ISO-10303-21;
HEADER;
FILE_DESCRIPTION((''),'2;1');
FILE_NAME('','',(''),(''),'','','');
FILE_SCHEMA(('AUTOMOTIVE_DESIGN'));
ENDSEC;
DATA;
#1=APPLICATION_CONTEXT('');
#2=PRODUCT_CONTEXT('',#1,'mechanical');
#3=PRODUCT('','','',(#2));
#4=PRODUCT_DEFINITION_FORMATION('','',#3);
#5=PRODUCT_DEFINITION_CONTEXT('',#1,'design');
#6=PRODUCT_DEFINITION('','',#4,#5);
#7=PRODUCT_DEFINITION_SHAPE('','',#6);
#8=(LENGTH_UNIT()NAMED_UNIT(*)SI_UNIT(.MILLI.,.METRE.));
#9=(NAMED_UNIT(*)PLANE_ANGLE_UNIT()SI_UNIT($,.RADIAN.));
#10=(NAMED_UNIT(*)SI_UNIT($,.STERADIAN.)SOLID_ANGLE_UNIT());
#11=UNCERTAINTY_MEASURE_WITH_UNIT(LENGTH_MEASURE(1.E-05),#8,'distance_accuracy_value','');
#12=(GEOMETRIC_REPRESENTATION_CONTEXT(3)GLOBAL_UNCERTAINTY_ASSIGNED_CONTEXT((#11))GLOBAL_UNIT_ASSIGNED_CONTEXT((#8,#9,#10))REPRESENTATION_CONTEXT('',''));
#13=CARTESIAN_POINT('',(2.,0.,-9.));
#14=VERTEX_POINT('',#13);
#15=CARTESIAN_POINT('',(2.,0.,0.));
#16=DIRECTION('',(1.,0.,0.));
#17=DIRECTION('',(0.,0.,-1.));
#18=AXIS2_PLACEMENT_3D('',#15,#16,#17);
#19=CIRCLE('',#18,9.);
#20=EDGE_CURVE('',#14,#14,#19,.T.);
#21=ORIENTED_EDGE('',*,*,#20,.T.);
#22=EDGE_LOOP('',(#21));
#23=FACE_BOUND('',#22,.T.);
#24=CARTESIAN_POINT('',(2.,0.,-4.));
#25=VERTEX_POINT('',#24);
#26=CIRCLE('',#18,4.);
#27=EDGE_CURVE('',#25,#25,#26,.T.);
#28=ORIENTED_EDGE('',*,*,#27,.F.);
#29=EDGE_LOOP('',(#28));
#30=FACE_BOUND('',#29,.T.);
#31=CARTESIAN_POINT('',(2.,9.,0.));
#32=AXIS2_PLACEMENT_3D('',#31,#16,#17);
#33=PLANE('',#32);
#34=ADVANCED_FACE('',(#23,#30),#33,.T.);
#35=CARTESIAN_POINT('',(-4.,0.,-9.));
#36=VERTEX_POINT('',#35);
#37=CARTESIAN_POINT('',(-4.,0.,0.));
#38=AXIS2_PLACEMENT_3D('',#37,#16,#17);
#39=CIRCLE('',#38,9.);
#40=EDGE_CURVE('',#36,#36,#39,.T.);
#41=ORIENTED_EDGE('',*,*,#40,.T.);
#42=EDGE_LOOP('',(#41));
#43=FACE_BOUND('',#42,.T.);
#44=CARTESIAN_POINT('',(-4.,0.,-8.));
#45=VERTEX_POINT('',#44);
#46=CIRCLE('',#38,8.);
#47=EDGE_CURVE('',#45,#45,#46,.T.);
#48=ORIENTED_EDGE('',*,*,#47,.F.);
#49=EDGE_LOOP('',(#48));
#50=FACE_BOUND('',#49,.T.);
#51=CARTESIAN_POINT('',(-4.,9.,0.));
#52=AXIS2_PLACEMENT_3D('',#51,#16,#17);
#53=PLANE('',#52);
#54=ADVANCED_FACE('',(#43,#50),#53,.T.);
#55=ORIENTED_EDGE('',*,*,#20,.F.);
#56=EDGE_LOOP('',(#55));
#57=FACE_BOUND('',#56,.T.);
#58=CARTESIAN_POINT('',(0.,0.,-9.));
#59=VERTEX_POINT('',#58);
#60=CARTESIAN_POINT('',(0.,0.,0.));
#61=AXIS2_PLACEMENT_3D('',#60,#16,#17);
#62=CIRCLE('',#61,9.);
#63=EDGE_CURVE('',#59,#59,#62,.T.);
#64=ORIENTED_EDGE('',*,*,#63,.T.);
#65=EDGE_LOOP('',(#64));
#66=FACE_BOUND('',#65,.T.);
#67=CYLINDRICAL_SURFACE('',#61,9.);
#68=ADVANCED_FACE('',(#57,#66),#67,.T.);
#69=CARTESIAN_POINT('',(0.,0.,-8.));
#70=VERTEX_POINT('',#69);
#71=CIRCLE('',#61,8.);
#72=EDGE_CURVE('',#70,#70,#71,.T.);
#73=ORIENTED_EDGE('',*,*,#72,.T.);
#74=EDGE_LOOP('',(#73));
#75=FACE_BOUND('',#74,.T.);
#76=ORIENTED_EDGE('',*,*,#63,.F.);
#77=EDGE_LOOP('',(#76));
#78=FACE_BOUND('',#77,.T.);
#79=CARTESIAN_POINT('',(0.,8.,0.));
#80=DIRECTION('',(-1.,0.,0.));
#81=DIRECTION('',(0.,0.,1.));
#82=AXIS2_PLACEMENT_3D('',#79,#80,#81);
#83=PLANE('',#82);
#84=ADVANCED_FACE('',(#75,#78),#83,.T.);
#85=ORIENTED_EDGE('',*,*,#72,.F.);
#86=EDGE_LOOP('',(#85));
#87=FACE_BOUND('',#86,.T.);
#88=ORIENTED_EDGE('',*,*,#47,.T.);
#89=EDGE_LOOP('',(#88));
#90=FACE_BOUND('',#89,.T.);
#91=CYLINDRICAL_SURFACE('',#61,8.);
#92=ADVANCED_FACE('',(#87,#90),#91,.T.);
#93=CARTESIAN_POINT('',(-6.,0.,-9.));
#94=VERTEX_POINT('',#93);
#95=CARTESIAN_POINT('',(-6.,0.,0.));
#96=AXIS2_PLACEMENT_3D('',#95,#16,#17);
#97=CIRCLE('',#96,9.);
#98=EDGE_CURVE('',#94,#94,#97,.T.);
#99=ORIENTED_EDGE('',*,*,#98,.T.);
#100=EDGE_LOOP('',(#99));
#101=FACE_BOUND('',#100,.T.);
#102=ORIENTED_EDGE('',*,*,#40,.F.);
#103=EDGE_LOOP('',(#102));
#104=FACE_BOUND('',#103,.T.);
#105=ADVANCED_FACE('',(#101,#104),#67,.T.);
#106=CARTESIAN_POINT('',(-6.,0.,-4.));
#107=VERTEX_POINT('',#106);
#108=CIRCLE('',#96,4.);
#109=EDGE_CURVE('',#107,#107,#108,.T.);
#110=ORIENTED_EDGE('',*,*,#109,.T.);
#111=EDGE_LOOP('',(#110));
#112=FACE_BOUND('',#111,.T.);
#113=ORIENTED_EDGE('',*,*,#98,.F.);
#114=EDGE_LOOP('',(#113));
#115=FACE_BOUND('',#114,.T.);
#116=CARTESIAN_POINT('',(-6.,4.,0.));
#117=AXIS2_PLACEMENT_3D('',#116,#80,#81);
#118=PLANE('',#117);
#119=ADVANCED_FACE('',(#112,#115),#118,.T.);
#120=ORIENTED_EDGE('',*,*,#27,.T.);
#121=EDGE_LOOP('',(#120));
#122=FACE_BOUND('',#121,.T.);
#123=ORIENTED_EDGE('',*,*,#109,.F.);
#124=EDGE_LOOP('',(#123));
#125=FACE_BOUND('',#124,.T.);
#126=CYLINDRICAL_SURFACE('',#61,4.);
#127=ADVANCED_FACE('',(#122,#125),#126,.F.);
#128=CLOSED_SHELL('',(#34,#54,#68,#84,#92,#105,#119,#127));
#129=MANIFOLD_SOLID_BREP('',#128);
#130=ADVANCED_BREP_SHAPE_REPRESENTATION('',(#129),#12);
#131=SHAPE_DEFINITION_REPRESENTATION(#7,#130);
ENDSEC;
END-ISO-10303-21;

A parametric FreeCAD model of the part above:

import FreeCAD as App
import Part
import Sketcher

doc = App.newDocument("Part")
body = doc.addObject("PartDesign::Body", "Body")

sketch1 = doc.addObject("Sketcher::SketchObject", "Sketch")
body.addObject(sketch1)
sketch1.AttachmentSupport = (doc.XY_Plane, [""])
sketch1.MapMode = "FlatFace"
sketch1.addGeometry([
    Part.LineSegment(App.Vector(-6, 4, 0), App.Vector(2, 4, 0)),
    Part.LineSegment(App.Vector(2, 4, 0), App.Vector(2, 9, 0)),
    Part.LineSegment(App.Vector(2, 9, 0), App.Vector(0, 9, 0)),
    Part.LineSegment(App.Vector(0, 9, 0), App.Vector(0, 8, 0)),
    Part.LineSegment(App.Vector(0, 8, 0), App.Vector(-4, 8, 0)),
    Part.LineSegment(App.Vector(-4, 8, 0), App.Vector(-4, 9, 0)),
    Part.LineSegment(App.Vector(-4, 9, 0), App.Vector(-6, 9, 0)),
    Part.LineSegment(App.Vector(-6, 9, 0), App.Vector(-6, 4, 0)),
], False)
sketch1.addConstraint([
    Sketcher.Constraint("Coincident", 0, 2, 1, 1),
    Sketcher.Constraint("Coincident", 1, 2, 2, 1),
    Sketcher.Constraint("Coincident", 2, 2, 3, 1),
    Sketcher.Constraint("Coincident", 3, 2, 4, 1),
    Sketcher.Constraint("Coincident", 4, 2, 5, 1),
    Sketcher.Constraint("Coincident", 5, 2, 6, 1),
    Sketcher.Constraint("Coincident", 6, 2, 7, 1),
    Sketcher.Constraint("Coincident", 7, 2, 0, 1),
    Sketcher.Constraint("Horizontal", 0),
    Sketcher.Constraint("Vertical", 1),
    Sketcher.Constraint("Horizontal", 2),
    Sketcher.Constraint("Vertical", 3),
    Sketcher.Constraint("Horizontal", 4),
    Sketcher.Constraint("Vertical", 5),
    Sketcher.Constraint("Horizontal", 6),
    Sketcher.Constraint("Vertical", 7),
    Sketcher.Constraint("PointOnObject", 2, 2, -2),
    Sketcher.Constraint("Horizontal", 2, 2, 5, 2),
    Sketcher.Constraint("Equal", 2, 6),
    Sketcher.Constraint("DistanceX", 0, 1, 0, 2, 8.0),
    Sketcher.Constraint("DistanceX", 2, 2, 2, 1, 2.0),
    Sketcher.Constraint("DistanceY", 1, 1, 1, 2, 5.0),
    Sketcher.Constraint("DistanceY", 3, 2, 3, 1, 1.0),
    Sketcher.Constraint("DistanceY", -1, 1, 0, 2, 4.0),
])
revolution = doc.addObject("PartDesign::Revolution", "Revolution")
body.addObject(revolution)
revolution.Profile = sketch1
revolution.ReferenceAxis = (sketch1, ["H_Axis"])
revolution.Angle = 360

doc.recompute()
